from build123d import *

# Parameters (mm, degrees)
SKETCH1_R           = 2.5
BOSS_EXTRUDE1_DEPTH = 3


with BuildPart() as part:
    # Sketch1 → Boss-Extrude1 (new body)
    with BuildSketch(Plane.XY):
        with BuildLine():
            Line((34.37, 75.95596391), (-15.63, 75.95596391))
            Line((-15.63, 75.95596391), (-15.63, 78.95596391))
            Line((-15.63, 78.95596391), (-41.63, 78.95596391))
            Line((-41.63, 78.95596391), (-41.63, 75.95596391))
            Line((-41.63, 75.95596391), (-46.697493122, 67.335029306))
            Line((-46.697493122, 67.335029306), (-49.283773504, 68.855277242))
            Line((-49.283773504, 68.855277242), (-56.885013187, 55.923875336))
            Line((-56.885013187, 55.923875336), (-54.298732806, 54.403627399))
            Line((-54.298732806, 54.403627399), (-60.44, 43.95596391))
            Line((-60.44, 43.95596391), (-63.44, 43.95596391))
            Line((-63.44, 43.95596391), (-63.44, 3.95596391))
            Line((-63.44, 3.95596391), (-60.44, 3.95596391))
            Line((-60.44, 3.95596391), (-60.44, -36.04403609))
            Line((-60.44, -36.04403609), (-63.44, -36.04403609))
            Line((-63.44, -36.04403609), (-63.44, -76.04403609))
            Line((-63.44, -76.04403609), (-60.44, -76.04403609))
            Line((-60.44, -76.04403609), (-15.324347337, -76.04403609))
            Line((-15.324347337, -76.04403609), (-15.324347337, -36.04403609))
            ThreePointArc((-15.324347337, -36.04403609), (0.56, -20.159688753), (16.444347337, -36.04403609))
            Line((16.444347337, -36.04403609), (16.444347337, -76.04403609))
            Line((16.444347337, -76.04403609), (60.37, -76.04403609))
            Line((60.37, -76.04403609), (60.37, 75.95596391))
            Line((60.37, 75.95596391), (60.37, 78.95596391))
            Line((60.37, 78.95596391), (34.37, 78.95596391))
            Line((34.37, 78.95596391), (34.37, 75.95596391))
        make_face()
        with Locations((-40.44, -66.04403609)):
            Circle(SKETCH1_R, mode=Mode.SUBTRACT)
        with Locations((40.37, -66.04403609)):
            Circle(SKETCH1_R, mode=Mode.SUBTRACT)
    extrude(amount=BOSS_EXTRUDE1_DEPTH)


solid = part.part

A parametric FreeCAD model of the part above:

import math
import FreeCAD as App
import Part
import Sketcher
from FreeCAD import Vector
Q = App.Units.Quantity

doc = App.newDocument("Part")
body = doc.addObject("PartDesign::Body", "Body")

sketch1 = body.newObject("Sketcher::SketchObject", "Sketch")
sketch1.AttachmentSupport = (doc.getObject("XY_Plane"), [""])
sketch1.MapMode = "FlatFace"
sketch1.addGeometry(Part.LineSegment(Vector(34.4, 76, 0), Vector(-15.6, 76, 0)), False)
sketch1.addGeometry(Part.LineSegment(Vector(-15.6, 76, 0), Vector(-15.6, 79, 0)), False)
sketch1.addGeometry(Part.LineSegment(Vector(-15.6, 79, 0), Vector(-41.6, 79, 0)), False)
sketch1.addGeometry(Part.LineSegment(Vector(-41.6, 79, 0), Vector(-41.6, 76, 0)), False)
sketch1.addGeometry(Part.LineSegment(Vector(-41.6, 76, 0), Vector(-46.7, 67.3, 0)), False)
sketch1.addGeometry(Part.LineSegment(Vector(-46.7, 67.3, 0), Vector(-49.3, 68.9, 0)), False)
sketch1.addGeometry(Part.LineSegment(Vector(-49.3, 68.9, 0), Vector(-56.9, 55.9, 0)), False)
sketch1.addGeometry(Part.LineSegment(Vector(-56.9, 55.9, 0), Vector(-54.3, 54.4, 0)), False)
sketch1.addGeometry(Part.LineSegment(Vector(-54.3, 54.4, 0), Vector(-60.4, 44, 0)), False)
sketch1.addGeometry(Part.LineSegment(Vector(-60.4, 44, 0), Vector(-63.4, 44, 0)), False)
sketch1.addGeometry(Part.LineSegment(Vector(-63.4, 44, 0), Vector(-63.4, 4, 0)), False)
sketch1.addGeometry(Part.LineSegment(Vector(-63.4, 4, 0), Vector(-60.4, 4, 0)), False)
sketch1.addGeometry(Part.LineSegment(Vector(-60.4, 4, 0), Vector(-60.4, -36, 0)), False)
sketch1.addGeometry(Part.LineSegment(Vector(-60.4, -36, 0), Vector(-63.4, -36, 0)), False)
sketch1.addGeometry(Part.LineSegment(Vector(-63.4, -36, 0), Vector(-63.4, -76, 0)), False)
sketch1.addGeometry(Part.LineSegment(Vector(-63.4, -76, 0), Vector(-15.3, -76, 0)), False)
sketch1.addGeometry(Part.LineSegment(Vector(-15.3, -76, 0), Vector(-15.3, -36, 0)), False)
sketch1.addGeometry(Part.ArcOfCircle(Part.Circle(Vector(0.6, -36, 0), Vector(0, 0, 1), 15.9), math.radians(0), math.radians(180)), False)
sketch1.addGeometry(Part.LineSegment(Vector(16.4, -36, 0), Vector(16.4, -76, 0)), False)
sketch1.addGeometry(Part.LineSegment(Vector(16.4, -76, 0), Vector(60.4, -76, 0)), False)
sketch1.addGeometry(Part.LineSegment(Vector(60.4, -76, 0), Vector(60.4, 79, 0)), False)
sketch1.addGeometry(Part.LineSegment(Vector(60.4, 79, 0), Vector(34.4, 79, 0)), False)
sketch1.addGeometry(Part.LineSegment(Vector(34.4, 79, 0), Vector(34.4, 76, 0)), False)
sketch1.addGeometry(Part.Circle(Vector(-40.4, -66, 0), Vector(0, 0, 1), 2.5), False)
sketch1.addGeometry(Part.Circle(Vector(40.4, -66, 0), Vector(0, 0, 1), 2.5), False)
sketch1.addConstraint(Sketcher.Constraint("Coincident", 0, 2, 1, 1))
sketch1.addConstraint(Sketcher.Constraint("Coincident", 1, 2, 2, 1))
sketch1.addConstraint(Sketcher.Constraint("Coincident", 2, 2, 3, 1))
sketch1.addConstraint(Sketcher.Constraint("Coincident", 3, 2, 4, 1))
sketch1.addConstraint(Sketcher.Constraint("Coincident", 4, 2, 5, 1))
sketch1.addConstraint(Sketcher.Constraint("Coincident", 5, 2, 6, 1))
sketch1.addConstraint(Sketcher.Constraint("Coincident", 6, 2, 7, 1))
sketch1.addConstraint(Sketcher.Constraint("Coincident", 7, 2, 8, 1))
sketch1.addConstraint(Sketcher.Constraint("Coincident", 8, 2, 9, 1))
sketch1.addConstraint(Sketcher.Constraint("Coincident", 9, 2, 10, 1))
sketch1.addConstraint(Sketcher.Constraint("Coincident", 10, 2, 11, 1))
sketch1.addConstraint(Sketcher.Constraint("Coincident", 11, 2, 12, 1))
sketch1.addConstraint(Sketcher.Constraint("Coincident", 12, 2, 13, 1))
sketch1.addConstraint(Sketcher.Constraint("Coincident", 13, 2, 14, 1))
sketch1.addConstraint(Sketcher.Constraint("Coincident", 14, 2, 15, 1))
sketch1.addConstraint(Sketcher.Constraint("Coincident", 15, 2, 16, 1))
sketch1.addConstraint(Sketcher.Constraint("Tangent", 16, 2, 17, 2))
sketch1.addConstraint(Sketcher.Constraint("Tangent", 17, 1, 18, 1))
sketch1.addConstraint(Sketcher.Constraint("Coincident", 18, 2, 19, 1))
sketch1.addConstraint(Sketcher.Constraint("Coincident", 19, 2, 20, 1))
sketch1.addConstraint(Sketcher.Constraint("Coincident", 20, 2, 21, 1))
sketch1.addConstraint(Sketcher.Constraint("Coincident", 21, 2, 22, 1))
sketch1.addConstraint(Sketcher.Constraint("Coincident", 22, 2, 0, 1))
sketch1.addConstraint(Sketcher.Constraint("Horizontal", 0))
sketch1.addConstraint(Sketcher.Constraint("Vertical", 1))
sketch1.addConstraint(Sketcher.Constraint("Horizontal", 2))
sketch1.addConstraint(Sketcher.Constraint("Vertical", 3))
sketch1.addConstraint(Sketcher.Constraint("Horizontal", 9))
sketch1.addConstraint(Sketcher.Constraint("Vertical", 10))
sketch1.addConstraint(Sketcher.Constraint("Horizontal", 11))
sketch1.addConstraint(Sketcher.Constraint("Vertical", 12))
sketch1.addConstraint(Sketcher.Constraint("Horizontal", 13))
sketch1.addConstraint(Sketcher.Constraint("Vertical", 14))
sketch1.addConstraint(Sketcher.Constraint("Horizontal", 15))
sketch1.addConstraint(Sketcher.Constraint("Vertical", 16))
sketch1.addConstraint(Sketcher.Constraint("Vertical", 18))
sketch1.addConstraint(Sketcher.Constraint("Horizontal", 19))
sketch1.addConstraint(Sketcher.Constraint("Vertical", 20))
sketch1.addConstraint(Sketcher.Constraint("Horizontal", 21))
sketch1.addConstraint(Sketcher.Constraint("Vertical", 22))
sketch1.addConstraint(Sketcher.Constraint("Equal", 23, 24))
sketch1.addConstraint(Sketcher.Constraint("Perpendicular", 4, 5))
sketch1.addConstraint(Sketcher.Constraint("Perpendicular", 5, 6))
sketch1.addConstraint(Sketcher.Constraint("Perpendicular", 6, 7))
sketch1.addConstraint(Sketcher.Constraint("Perpendicular", 7, 8))
sketch1.addConstraint(Sketcher.Constraint("Horizontal", 23, 3, 24, 3))
sketch1.addConstraint(Sketcher.Constraint("Horizontal", 0, 2, 3, 2))
sketch1.addConstraint(Sketcher.Constraint("Horizontal", 17, 3, 12, 2))
sketch1.addConstraint(Sketcher.Constraint("Horizontal", 15, 2, 18, 2))
sketch1.addConstraint(Sketcher.Constraint("Horizontal", 2, 2, 20, 2))
sketch1.addConstraint(Sketcher.Constraint("Vertical", 8, 2, 11, 2))
sketch1.addConstraint(Sketcher.Constraint("Vertical", 10, 2, 13, 2))
sketch1.addConstraint(Sketcher.Constraint("Equal", 2, 21))
sketch1.addConstraint(Sketcher.Constraint("Equal", 13, 1))
sketch1.addConstraint(Sketcher.Constraint("Equal", 10, 12))
sketch1.addConstraint(Sketcher.Constraint("Equal", 12, 14))
sketch1.addConstraint(Sketcher.Constraint("Equal", 5, 7))
sketch1.addConstraint(Sketcher.Constraint("Diameter", 23, Q("5 mm")))
sketch1.addConstraint(Sketcher.Constraint("DistanceX", 0, 2, 0, 1, Q("50 mm")))
sketch1.addConstraint(Sketcher.Constraint("DistanceX", 2, 2, 2, 1, Q("26 mm")))
sketch1.addConstraint(Sketcher.Constraint("DistanceX", 9, 2, 9, 1, Q("3 mm")))
sketch1.addConstraint(Sketcher.Constraint("DistanceY", 10, 2, 10, 1, Q("40 mm")))
sketch1.addConstraint(Sketcher.Constraint("DistanceY", 20, 1, 20, 2, Q("155 mm")))
sketch1.addConstraint(Sketcher.Constraint("Distance", 4, Q("10 mm")))
sketch1.addConstraint(Sketcher.Constraint("Distance", 5, Q("3 mm")))
sketch1.addConstraint(Sketcher.Constraint("Distance", 6, Q("15 mm")))
sketch1.addConstraint(Sketcher.Constraint("DistanceX", 23, 3, 17, 3, Q("41 mm")))
sketch1.addConstraint(Sketcher.Constraint("DistanceY", 23, 3, 17, 3, Q("30 mm")))
sketch1.addConstraint(Sketcher.Constraint("DistanceX", 0, 2, 24, 3, Q("56 mm")))
sketch1.addConstraint(Sketcher.Constraint("DistanceX", 12, 2, 23, 3, Q("20 mm")))
sketch1.addConstraint(Sketcher.Constraint("DistanceX", -1, 1, 17, 3, Q("0.56 mm")))
sketch1.addConstraint(Sketcher.Constraint("DistanceX", -1, 1, 24, 3, Q("40.37 mm")))
sketch1.addConstraint(Sketcher.Constraint("Radius", 17, Q("15.884347 mm")))
sketch1.addConstraint(Sketcher.Constraint("DistanceY", -1, 1, 4, 2, Q("67.335029 mm")))
pad1 = body.newObject("PartDesign::Pad", "Pad")
pad1.Profile = sketch1
pad1.Length = 3

doc.recompute()
